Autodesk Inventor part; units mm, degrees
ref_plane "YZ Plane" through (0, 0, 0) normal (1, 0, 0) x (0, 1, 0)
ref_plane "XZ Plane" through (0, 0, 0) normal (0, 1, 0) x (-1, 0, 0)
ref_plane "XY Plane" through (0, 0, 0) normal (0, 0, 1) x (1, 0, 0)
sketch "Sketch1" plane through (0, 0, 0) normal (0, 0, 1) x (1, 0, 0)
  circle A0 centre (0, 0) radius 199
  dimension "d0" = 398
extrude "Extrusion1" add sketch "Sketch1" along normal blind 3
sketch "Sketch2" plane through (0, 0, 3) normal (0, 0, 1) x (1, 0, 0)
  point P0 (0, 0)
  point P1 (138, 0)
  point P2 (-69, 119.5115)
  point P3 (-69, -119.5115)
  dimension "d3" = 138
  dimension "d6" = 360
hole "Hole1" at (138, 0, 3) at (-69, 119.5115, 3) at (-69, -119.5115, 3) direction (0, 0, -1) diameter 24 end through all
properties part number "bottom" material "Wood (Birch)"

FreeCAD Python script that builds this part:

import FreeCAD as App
import Part
import Sketcher
from FreeCAD import Vector

doc = App.newDocument("Part")
body = doc.addObject("PartDesign::Body", "Body")

# Sketch on XY plane
sketch1 = body.newObject("Sketcher::SketchObject", "Sketch")
sketch1.AttachmentSupport = (doc.getObject("XY_Plane"), [""])
sketch1.MapMode = "FlatFace"
sketch1.addGeometry(Part.Circle(Vector(0, 0, 0), Vector(0, 0, 1), 199), False)
sketch1.addConstraint(Sketcher.Constraint("Coincident", 0, 3, -1, 1))
sketch1.addConstraint(Sketcher.Constraint("Diameter", 0, 398.0))
pad1 = body.newObject("PartDesign::Pad", "Pad")
pad1.Profile = sketch1
pad1.Length = 3

# Sketch on XY plane
sketch2 = body.newObject("Sketcher::SketchObject", "Sketch001")
sketch2.AttachmentSupport = (doc.getObject("XY_Plane"), [""])
sketch2.MapMode = "FlatFace"
sketch2.AttachmentOffset = App.Placement(Vector(0, 0, 3), App.Rotation())
sketch2.addGeometry(Part.Circle(Vector(138, 0, 0), Vector(0, 0, 1), 12), False)
sketch2.addGeometry(Part.Circle(Vector(-69, 120, 0), Vector(0, 0, 1), 12), False)
sketch2.addGeometry(Part.Circle(Vector(-69, -120, 0), Vector(0, 0, 1), 12), False)
sketch2.addConstraint(Sketcher.Constraint("Equal", 0, 1))
sketch2.addConstraint(Sketcher.Constraint("Equal", 1, 2))
sketch2.addConstraint(Sketcher.Constraint("Symmetric", 1, 3, 2, 3, -1))
sketch2.addConstraint(Sketcher.Constraint("PointOnObject", 0, 3, -1))
sketch2.addConstraint(Sketcher.Constraint("Diameter", 0, 24.0))
sketch2.addConstraint(Sketcher.Constraint("DistanceX", -1, 1, 0, 3, 138.0))
sketch2.addConstraint(Sketcher.Constraint("DistanceX", 1, 3, -1, 1, 69.0))
sketch2.addConstraint(Sketcher.Constraint("DistanceY", 2, 3, 1, 3, 239.023))
doc.recompute()
hole = body.newObject("PartDesign::Hole", "Hole")
hole.Profile = sketch2
hole.ThreadType = "None"
hole.Diameter = 24
hole.DepthType = "ThroughAll"

doc.recompute()
